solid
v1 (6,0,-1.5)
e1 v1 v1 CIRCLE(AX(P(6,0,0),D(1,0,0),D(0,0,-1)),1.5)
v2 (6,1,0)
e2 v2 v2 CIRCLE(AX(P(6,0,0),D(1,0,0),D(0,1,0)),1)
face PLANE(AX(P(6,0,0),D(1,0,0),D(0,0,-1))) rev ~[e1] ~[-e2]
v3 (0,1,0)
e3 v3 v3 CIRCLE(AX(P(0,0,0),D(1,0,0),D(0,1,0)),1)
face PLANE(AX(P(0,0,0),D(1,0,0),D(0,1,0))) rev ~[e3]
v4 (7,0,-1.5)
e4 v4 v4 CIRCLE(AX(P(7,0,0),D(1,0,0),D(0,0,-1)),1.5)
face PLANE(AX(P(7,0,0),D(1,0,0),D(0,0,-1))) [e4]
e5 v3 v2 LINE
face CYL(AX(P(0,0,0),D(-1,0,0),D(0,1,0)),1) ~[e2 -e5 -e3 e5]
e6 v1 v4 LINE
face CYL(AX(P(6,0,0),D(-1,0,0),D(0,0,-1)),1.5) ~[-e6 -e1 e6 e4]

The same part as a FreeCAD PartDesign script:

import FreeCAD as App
import Part
import Sketcher

V = App.Vector

doc = App.newDocument("Part")
body = doc.addObject("PartDesign::Body", "Body")

# Sketch on YZ plane
sketch1 = body.newObject("Sketcher::SketchObject", "Sketch")
sketch1.AttachmentSupport = (doc.getObject("YZ_Plane"), [""])
sketch1.MapMode = "FlatFace"
sketch1.addGeometry(Part.Circle(V(0, 0, 0), V(0, 0, 1), 1), False)
sketch1.addConstraint(Sketcher.Constraint("Coincident", 0, 3, -1, 1))
sketch1.addConstraint(Sketcher.Constraint("Diameter", 0, 2.0))
pad1 = body.newObject("PartDesign::Pad", "Pad")
pad1.Profile = sketch1
pad1.Length = 6

# Sketch on YZ plane
sketch2 = body.newObject("Sketcher::SketchObject", "Sketch001")
sketch2.AttachmentSupport = (doc.getObject("YZ_Plane"), [""])
sketch2.MapMode = "FlatFace"
sketch2.AttachmentOffset = App.Placement(V(0, 0, 6), App.Rotation())
sketch2.addGeometry(Part.Circle(V(0, 0, 0), V(0, 0, 1), 1.5), False)
sketch2.addConstraint(Sketcher.Constraint("Coincident", 0, 3, -1, 1))
sketch2.addConstraint(Sketcher.Constraint("Diameter", 0, 3.0))
pad2 = body.newObject("PartDesign::Pad", "Pad001")
pad2.Profile = sketch2
pad2.Length = 1

doc.recompute()
